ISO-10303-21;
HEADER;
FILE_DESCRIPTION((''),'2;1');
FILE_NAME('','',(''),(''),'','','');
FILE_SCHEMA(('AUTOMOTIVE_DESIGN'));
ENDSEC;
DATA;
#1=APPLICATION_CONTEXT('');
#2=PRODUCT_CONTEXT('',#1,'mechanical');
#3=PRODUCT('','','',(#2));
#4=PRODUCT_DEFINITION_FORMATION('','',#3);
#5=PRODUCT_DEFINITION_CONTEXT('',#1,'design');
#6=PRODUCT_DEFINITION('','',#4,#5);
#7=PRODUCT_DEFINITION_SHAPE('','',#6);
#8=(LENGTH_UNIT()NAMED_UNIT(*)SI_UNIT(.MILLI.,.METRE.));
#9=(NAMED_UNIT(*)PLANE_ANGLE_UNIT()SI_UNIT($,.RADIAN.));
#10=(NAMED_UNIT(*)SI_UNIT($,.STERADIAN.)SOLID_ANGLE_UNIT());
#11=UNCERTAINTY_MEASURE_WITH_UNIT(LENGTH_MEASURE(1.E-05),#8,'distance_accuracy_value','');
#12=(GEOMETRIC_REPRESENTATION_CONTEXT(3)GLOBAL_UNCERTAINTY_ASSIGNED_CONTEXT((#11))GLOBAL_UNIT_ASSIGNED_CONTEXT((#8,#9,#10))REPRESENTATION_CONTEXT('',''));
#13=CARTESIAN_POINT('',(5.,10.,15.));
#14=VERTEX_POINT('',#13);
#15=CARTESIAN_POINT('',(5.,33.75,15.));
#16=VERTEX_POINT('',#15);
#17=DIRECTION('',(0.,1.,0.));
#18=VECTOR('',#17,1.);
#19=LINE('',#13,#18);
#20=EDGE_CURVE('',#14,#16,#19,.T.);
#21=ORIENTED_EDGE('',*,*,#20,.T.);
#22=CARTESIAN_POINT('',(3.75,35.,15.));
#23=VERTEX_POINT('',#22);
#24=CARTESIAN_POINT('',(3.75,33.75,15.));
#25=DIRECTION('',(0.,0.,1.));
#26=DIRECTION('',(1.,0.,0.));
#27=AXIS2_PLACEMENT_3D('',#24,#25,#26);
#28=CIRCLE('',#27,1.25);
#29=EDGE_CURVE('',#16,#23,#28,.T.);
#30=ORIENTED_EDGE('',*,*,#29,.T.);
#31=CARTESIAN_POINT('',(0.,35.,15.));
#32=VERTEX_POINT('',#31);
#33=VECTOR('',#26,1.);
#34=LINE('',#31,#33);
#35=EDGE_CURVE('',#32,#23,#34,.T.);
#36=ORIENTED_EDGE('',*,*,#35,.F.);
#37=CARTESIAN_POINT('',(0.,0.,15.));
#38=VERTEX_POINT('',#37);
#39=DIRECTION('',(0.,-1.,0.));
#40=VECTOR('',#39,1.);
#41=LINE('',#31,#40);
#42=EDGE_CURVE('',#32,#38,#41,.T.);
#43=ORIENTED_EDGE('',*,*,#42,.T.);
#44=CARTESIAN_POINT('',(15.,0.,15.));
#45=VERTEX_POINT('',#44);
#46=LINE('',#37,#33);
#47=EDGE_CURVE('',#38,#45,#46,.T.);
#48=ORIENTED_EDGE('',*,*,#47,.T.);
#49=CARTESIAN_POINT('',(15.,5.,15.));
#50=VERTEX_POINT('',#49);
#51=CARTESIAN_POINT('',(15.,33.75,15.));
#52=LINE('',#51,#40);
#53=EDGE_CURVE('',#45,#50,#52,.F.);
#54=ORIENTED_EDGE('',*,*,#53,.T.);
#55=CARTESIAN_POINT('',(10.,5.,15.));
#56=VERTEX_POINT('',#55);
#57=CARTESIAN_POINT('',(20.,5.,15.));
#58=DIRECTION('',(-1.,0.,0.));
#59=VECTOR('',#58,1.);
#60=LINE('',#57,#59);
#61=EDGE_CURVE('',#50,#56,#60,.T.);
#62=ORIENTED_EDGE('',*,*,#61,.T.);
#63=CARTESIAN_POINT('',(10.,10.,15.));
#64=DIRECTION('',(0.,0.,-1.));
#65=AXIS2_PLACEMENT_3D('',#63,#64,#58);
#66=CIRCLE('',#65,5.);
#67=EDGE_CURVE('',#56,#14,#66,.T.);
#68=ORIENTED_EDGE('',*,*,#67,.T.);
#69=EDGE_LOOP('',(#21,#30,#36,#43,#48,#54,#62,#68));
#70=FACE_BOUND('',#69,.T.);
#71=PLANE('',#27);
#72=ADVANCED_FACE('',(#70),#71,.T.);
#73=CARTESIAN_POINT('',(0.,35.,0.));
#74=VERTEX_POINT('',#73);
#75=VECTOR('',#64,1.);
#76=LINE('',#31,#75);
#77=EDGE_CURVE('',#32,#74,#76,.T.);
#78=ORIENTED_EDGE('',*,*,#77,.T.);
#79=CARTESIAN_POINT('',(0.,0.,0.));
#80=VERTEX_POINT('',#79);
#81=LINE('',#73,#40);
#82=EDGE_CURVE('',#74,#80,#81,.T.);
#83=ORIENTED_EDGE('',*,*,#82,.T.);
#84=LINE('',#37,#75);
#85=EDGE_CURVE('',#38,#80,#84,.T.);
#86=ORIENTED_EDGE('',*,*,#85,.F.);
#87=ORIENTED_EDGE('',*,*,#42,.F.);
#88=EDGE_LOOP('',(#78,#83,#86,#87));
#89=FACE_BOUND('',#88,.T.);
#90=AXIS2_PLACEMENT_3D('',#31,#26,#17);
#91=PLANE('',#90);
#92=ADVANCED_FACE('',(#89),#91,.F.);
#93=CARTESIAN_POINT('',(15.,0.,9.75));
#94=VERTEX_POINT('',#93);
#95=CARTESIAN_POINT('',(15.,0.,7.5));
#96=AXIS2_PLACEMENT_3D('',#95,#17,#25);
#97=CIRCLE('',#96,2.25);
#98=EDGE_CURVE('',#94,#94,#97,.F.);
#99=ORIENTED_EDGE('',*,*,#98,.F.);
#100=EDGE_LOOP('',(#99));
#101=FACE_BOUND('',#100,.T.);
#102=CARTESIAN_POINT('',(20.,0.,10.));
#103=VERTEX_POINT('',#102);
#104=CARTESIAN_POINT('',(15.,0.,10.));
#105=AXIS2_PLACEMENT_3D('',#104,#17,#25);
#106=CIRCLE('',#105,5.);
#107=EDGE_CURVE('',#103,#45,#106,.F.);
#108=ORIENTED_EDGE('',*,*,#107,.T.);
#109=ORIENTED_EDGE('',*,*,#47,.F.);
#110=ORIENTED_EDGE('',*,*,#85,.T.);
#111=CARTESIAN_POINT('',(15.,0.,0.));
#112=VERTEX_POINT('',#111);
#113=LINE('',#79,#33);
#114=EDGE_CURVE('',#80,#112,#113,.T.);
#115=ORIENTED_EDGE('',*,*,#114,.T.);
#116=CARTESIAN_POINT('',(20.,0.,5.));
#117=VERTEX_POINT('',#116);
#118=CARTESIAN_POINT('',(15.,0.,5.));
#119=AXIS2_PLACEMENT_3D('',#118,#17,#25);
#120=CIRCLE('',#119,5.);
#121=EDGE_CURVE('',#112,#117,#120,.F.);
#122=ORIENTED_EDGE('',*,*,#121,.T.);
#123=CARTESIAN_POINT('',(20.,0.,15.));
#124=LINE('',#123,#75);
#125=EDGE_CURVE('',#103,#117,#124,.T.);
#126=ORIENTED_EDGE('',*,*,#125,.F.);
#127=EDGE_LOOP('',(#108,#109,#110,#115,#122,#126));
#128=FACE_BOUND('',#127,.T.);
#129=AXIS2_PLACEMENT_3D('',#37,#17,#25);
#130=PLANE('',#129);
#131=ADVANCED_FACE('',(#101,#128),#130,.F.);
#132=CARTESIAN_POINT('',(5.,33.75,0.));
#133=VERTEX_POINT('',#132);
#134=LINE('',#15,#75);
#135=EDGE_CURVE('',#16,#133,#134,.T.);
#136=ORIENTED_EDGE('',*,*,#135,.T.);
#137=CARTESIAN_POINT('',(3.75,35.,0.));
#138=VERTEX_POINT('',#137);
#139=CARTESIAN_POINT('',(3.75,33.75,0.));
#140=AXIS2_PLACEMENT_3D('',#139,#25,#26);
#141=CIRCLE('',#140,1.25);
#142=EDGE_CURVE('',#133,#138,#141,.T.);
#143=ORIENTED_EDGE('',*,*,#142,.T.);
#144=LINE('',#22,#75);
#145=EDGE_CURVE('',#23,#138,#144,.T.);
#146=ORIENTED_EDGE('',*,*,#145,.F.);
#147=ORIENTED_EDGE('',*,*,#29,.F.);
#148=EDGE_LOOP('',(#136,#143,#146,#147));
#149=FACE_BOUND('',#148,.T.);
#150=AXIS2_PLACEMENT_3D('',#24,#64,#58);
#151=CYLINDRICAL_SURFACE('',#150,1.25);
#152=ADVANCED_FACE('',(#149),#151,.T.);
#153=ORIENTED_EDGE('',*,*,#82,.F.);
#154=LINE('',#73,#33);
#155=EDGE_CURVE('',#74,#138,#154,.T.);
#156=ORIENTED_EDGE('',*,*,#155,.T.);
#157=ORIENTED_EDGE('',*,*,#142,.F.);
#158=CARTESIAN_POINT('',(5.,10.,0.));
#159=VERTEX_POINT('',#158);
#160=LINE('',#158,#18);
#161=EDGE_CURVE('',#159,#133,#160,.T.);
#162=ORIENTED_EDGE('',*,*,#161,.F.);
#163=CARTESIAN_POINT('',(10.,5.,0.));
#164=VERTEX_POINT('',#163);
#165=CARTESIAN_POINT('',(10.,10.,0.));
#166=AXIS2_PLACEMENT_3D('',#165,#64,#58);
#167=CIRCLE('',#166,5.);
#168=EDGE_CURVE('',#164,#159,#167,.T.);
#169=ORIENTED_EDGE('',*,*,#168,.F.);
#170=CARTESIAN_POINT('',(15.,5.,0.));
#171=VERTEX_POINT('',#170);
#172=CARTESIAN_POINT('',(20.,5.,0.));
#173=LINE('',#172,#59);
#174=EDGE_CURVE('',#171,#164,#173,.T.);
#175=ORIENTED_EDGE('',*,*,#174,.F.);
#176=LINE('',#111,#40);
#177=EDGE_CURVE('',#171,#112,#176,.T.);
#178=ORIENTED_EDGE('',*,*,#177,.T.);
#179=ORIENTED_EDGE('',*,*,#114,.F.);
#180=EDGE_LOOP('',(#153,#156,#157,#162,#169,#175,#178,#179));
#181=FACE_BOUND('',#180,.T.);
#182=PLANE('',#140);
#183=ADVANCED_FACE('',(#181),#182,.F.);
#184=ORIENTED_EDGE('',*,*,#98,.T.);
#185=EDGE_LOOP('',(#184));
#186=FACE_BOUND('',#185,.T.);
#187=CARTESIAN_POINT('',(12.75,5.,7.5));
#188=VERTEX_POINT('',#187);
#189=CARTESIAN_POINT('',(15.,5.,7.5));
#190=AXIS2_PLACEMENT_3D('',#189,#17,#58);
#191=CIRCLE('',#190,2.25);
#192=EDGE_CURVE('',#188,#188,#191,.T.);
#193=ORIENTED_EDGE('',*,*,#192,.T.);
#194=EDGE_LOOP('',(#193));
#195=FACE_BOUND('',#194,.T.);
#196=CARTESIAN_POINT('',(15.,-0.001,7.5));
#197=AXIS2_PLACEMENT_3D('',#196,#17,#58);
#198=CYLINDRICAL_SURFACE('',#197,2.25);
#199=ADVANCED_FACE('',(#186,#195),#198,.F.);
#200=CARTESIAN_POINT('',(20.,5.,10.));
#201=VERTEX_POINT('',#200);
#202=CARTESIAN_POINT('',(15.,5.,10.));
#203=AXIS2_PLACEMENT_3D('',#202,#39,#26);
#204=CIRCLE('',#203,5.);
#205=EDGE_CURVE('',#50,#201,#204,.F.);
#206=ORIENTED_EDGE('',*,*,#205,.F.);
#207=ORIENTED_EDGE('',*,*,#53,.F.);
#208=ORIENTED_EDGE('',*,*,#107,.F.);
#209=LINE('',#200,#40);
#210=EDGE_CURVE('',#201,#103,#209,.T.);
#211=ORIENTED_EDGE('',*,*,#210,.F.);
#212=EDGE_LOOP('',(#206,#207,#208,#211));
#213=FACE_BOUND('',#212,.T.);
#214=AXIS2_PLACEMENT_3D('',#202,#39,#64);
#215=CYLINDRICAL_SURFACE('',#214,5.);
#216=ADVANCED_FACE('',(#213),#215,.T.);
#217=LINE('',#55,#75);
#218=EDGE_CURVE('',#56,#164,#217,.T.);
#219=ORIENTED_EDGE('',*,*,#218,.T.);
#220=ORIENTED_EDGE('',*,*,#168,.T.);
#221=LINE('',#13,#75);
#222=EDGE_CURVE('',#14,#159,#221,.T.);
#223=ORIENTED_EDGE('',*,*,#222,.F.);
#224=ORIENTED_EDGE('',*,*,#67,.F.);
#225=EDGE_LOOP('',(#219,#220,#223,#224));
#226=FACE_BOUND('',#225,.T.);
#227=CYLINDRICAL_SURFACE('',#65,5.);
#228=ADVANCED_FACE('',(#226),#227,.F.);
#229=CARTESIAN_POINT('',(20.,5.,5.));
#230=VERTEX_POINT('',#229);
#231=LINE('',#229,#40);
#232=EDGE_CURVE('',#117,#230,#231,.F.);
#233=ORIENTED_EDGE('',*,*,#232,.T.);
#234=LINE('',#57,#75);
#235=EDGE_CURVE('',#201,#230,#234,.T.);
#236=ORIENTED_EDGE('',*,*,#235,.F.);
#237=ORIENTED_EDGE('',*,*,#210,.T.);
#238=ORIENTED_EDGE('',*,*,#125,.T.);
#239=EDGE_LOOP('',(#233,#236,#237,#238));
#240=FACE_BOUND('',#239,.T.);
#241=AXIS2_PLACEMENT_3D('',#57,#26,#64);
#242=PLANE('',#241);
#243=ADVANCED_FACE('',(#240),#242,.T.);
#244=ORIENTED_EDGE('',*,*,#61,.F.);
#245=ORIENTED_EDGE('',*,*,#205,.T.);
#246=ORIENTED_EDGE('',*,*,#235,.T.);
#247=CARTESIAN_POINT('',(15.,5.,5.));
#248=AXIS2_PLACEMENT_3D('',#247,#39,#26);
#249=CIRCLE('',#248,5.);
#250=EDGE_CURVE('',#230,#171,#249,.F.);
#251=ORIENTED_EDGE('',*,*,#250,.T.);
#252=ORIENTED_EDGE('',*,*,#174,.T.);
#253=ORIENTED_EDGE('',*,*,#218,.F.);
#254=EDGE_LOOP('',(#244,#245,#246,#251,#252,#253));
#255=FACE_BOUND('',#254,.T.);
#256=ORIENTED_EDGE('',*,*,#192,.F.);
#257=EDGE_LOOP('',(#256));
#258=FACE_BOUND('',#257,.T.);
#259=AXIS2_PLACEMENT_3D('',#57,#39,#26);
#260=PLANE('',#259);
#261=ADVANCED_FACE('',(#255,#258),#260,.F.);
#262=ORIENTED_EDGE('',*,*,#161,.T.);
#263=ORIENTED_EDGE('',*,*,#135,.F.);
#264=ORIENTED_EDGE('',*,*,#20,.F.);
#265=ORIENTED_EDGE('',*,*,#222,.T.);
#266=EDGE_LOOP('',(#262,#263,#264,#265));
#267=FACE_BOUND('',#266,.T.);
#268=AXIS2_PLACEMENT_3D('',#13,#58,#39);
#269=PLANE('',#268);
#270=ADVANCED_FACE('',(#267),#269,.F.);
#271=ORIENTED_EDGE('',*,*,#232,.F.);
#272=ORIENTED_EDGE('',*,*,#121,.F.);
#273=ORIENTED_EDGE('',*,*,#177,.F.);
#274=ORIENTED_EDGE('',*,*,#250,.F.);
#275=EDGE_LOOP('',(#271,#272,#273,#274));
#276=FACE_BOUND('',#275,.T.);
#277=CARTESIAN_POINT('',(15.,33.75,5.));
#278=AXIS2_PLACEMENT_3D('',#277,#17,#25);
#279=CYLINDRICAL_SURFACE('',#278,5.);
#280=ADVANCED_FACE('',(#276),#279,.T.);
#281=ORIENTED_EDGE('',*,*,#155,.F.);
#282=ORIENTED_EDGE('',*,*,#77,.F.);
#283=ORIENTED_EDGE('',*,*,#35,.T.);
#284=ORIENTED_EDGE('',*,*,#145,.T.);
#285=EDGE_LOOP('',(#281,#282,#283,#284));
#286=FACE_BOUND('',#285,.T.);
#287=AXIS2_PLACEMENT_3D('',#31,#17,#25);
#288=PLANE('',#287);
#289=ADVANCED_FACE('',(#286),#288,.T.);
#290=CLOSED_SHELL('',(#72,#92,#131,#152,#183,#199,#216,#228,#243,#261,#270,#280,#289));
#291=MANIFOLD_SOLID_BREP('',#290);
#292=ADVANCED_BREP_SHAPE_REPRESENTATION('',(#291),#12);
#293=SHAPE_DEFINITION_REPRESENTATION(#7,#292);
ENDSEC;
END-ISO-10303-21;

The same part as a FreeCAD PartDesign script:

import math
import FreeCAD as App
import Part
import Sketcher

V = App.Vector
Q = App.Units.Quantity


def edges_at(feature, points):
    """Names of the edges that pass closest to the given points."""
    edges = feature.Shape.Edges
    near = lambda p: min(range(len(edges)), key=lambda i: edges[i].distToShape(Part.Vertex(*p))[0])
    return sorted({f"Edge{near(p) + 1}" for p in points})

doc = App.newDocument("Part")
body = doc.addObject("PartDesign::Body", "Body")

# Sketch on XY plane
sketch1 = body.newObject("Sketcher::SketchObject", "Sketch")
sketch1.AttachmentSupport = (doc.getObject("XY_Plane"), [""])
sketch1.MapMode = "FlatFace"
sketch1.addGeometry([
    Part.LineSegment(V(0, 35, 0), V(0, 0, 0)),  # 0
    Part.LineSegment(V(0, 0, 0), V(20, 0, 0)),  # 1
    Part.LineSegment(V(20, 0, 0), V(20, 5, 0)),  # 2
    Part.LineSegment(V(20, 5, 0), V(10, 5, 0)),  # 3
    Part.ArcOfCircle(Part.Circle(V(10, 10, 0), V(0, 0, 1), 5), math.radians(180), math.radians(270)),  # 4
    Part.LineSegment(V(5, 10, 0), V(5, 33.8, 0)),  # 5
    Part.ArcOfCircle(Part.Circle(V(3.7, 33.7, 0), V(0, 0, 1), 1.3), math.radians(0), math.radians(90)),  # 6
    Part.LineSegment(V(3.8, 35, 0), V(0, 35, 0)),  # 7
], False)
sketch1.addConstraint([
    Sketcher.Constraint("Coincident", 0, 2, 1, 1),
    Sketcher.Constraint("Coincident", 1, 2, 2, 1),
    Sketcher.Constraint("Coincident", 2, 2, 3, 1),
    Sketcher.Constraint("Tangent", 3, 2, 4, 2),
    Sketcher.Constraint("Tangent", 4, 1, 5, 1),
    Sketcher.Constraint("Tangent", 5, 2, 6, 1),
    Sketcher.Constraint("Tangent", 6, 2, 7, 1),
    Sketcher.Constraint("Coincident", 7, 2, 0, 1),
    Sketcher.Constraint("Vertical", 0),
    Sketcher.Constraint("Horizontal", 1),
    Sketcher.Constraint("Vertical", 2),
    Sketcher.Constraint("Horizontal", 3),
    Sketcher.Constraint("Vertical", 5),
    Sketcher.Constraint("Horizontal", 7),
    Sketcher.Constraint("Coincident", 0, 2, -1, 1),
    Sketcher.Constraint("Radius", 4, Q("5 mm")),
    Sketcher.Constraint("DistanceX", 1, 1, 1, 2, Q("20 mm")),
    Sketcher.Constraint("DistanceX", 3, 2, 3, 1, Q("10 mm")),
    Sketcher.Constraint("DistanceY", 0, 2, 0, 1, Q("35 mm")),
    Sketcher.Constraint("DistanceY", 2, 1, 2, 2, Q("5 mm")),
    Sketcher.Constraint("Radius", 6, Q("1.25 mm")),
])
pad1 = body.newObject("PartDesign::Pad", "Pad")
pad1.Profile = sketch1
pad1.Length = 15

# Sketch on XZ plane
sketch2 = body.newObject("Sketcher::SketchObject", "Sketch001")
sketch2.AttachmentSupport = (doc.getObject("XZ_Plane"), [""])
sketch2.MapMode = "FlatFace"
sketch2.AttachmentOffset = App.Placement(V(0, 0, -5), App.Rotation())
sketch2.addGeometry(Part.Circle(V(15, 7.5, 0), V(0, 0, 1), 2.2), False)
sketch2.addConstraint([
    Sketcher.Constraint("Diameter", 0, Q("4.5 mm")),
    Sketcher.Constraint("DistanceX", -1, 1, 0, 3, Q("15 mm")),
    Sketcher.Constraint("DistanceY", -1, 1, 0, 3, Q("7.5 mm")),
])
pocket1 = body.newObject("PartDesign::Pocket", "Pocket")
pocket1.Profile = sketch2
pocket1.Type = "UpToFirst"
pocket1.Reversed = True
doc.recompute()

fillet = body.newObject("PartDesign::Fillet", "Fillet")
fillet.Base = (pocket1, edges_at(pocket1, [(20, 2.5, 15), (20, 2.5, 0)]))
fillet.Radius = 5

doc.recompute()
